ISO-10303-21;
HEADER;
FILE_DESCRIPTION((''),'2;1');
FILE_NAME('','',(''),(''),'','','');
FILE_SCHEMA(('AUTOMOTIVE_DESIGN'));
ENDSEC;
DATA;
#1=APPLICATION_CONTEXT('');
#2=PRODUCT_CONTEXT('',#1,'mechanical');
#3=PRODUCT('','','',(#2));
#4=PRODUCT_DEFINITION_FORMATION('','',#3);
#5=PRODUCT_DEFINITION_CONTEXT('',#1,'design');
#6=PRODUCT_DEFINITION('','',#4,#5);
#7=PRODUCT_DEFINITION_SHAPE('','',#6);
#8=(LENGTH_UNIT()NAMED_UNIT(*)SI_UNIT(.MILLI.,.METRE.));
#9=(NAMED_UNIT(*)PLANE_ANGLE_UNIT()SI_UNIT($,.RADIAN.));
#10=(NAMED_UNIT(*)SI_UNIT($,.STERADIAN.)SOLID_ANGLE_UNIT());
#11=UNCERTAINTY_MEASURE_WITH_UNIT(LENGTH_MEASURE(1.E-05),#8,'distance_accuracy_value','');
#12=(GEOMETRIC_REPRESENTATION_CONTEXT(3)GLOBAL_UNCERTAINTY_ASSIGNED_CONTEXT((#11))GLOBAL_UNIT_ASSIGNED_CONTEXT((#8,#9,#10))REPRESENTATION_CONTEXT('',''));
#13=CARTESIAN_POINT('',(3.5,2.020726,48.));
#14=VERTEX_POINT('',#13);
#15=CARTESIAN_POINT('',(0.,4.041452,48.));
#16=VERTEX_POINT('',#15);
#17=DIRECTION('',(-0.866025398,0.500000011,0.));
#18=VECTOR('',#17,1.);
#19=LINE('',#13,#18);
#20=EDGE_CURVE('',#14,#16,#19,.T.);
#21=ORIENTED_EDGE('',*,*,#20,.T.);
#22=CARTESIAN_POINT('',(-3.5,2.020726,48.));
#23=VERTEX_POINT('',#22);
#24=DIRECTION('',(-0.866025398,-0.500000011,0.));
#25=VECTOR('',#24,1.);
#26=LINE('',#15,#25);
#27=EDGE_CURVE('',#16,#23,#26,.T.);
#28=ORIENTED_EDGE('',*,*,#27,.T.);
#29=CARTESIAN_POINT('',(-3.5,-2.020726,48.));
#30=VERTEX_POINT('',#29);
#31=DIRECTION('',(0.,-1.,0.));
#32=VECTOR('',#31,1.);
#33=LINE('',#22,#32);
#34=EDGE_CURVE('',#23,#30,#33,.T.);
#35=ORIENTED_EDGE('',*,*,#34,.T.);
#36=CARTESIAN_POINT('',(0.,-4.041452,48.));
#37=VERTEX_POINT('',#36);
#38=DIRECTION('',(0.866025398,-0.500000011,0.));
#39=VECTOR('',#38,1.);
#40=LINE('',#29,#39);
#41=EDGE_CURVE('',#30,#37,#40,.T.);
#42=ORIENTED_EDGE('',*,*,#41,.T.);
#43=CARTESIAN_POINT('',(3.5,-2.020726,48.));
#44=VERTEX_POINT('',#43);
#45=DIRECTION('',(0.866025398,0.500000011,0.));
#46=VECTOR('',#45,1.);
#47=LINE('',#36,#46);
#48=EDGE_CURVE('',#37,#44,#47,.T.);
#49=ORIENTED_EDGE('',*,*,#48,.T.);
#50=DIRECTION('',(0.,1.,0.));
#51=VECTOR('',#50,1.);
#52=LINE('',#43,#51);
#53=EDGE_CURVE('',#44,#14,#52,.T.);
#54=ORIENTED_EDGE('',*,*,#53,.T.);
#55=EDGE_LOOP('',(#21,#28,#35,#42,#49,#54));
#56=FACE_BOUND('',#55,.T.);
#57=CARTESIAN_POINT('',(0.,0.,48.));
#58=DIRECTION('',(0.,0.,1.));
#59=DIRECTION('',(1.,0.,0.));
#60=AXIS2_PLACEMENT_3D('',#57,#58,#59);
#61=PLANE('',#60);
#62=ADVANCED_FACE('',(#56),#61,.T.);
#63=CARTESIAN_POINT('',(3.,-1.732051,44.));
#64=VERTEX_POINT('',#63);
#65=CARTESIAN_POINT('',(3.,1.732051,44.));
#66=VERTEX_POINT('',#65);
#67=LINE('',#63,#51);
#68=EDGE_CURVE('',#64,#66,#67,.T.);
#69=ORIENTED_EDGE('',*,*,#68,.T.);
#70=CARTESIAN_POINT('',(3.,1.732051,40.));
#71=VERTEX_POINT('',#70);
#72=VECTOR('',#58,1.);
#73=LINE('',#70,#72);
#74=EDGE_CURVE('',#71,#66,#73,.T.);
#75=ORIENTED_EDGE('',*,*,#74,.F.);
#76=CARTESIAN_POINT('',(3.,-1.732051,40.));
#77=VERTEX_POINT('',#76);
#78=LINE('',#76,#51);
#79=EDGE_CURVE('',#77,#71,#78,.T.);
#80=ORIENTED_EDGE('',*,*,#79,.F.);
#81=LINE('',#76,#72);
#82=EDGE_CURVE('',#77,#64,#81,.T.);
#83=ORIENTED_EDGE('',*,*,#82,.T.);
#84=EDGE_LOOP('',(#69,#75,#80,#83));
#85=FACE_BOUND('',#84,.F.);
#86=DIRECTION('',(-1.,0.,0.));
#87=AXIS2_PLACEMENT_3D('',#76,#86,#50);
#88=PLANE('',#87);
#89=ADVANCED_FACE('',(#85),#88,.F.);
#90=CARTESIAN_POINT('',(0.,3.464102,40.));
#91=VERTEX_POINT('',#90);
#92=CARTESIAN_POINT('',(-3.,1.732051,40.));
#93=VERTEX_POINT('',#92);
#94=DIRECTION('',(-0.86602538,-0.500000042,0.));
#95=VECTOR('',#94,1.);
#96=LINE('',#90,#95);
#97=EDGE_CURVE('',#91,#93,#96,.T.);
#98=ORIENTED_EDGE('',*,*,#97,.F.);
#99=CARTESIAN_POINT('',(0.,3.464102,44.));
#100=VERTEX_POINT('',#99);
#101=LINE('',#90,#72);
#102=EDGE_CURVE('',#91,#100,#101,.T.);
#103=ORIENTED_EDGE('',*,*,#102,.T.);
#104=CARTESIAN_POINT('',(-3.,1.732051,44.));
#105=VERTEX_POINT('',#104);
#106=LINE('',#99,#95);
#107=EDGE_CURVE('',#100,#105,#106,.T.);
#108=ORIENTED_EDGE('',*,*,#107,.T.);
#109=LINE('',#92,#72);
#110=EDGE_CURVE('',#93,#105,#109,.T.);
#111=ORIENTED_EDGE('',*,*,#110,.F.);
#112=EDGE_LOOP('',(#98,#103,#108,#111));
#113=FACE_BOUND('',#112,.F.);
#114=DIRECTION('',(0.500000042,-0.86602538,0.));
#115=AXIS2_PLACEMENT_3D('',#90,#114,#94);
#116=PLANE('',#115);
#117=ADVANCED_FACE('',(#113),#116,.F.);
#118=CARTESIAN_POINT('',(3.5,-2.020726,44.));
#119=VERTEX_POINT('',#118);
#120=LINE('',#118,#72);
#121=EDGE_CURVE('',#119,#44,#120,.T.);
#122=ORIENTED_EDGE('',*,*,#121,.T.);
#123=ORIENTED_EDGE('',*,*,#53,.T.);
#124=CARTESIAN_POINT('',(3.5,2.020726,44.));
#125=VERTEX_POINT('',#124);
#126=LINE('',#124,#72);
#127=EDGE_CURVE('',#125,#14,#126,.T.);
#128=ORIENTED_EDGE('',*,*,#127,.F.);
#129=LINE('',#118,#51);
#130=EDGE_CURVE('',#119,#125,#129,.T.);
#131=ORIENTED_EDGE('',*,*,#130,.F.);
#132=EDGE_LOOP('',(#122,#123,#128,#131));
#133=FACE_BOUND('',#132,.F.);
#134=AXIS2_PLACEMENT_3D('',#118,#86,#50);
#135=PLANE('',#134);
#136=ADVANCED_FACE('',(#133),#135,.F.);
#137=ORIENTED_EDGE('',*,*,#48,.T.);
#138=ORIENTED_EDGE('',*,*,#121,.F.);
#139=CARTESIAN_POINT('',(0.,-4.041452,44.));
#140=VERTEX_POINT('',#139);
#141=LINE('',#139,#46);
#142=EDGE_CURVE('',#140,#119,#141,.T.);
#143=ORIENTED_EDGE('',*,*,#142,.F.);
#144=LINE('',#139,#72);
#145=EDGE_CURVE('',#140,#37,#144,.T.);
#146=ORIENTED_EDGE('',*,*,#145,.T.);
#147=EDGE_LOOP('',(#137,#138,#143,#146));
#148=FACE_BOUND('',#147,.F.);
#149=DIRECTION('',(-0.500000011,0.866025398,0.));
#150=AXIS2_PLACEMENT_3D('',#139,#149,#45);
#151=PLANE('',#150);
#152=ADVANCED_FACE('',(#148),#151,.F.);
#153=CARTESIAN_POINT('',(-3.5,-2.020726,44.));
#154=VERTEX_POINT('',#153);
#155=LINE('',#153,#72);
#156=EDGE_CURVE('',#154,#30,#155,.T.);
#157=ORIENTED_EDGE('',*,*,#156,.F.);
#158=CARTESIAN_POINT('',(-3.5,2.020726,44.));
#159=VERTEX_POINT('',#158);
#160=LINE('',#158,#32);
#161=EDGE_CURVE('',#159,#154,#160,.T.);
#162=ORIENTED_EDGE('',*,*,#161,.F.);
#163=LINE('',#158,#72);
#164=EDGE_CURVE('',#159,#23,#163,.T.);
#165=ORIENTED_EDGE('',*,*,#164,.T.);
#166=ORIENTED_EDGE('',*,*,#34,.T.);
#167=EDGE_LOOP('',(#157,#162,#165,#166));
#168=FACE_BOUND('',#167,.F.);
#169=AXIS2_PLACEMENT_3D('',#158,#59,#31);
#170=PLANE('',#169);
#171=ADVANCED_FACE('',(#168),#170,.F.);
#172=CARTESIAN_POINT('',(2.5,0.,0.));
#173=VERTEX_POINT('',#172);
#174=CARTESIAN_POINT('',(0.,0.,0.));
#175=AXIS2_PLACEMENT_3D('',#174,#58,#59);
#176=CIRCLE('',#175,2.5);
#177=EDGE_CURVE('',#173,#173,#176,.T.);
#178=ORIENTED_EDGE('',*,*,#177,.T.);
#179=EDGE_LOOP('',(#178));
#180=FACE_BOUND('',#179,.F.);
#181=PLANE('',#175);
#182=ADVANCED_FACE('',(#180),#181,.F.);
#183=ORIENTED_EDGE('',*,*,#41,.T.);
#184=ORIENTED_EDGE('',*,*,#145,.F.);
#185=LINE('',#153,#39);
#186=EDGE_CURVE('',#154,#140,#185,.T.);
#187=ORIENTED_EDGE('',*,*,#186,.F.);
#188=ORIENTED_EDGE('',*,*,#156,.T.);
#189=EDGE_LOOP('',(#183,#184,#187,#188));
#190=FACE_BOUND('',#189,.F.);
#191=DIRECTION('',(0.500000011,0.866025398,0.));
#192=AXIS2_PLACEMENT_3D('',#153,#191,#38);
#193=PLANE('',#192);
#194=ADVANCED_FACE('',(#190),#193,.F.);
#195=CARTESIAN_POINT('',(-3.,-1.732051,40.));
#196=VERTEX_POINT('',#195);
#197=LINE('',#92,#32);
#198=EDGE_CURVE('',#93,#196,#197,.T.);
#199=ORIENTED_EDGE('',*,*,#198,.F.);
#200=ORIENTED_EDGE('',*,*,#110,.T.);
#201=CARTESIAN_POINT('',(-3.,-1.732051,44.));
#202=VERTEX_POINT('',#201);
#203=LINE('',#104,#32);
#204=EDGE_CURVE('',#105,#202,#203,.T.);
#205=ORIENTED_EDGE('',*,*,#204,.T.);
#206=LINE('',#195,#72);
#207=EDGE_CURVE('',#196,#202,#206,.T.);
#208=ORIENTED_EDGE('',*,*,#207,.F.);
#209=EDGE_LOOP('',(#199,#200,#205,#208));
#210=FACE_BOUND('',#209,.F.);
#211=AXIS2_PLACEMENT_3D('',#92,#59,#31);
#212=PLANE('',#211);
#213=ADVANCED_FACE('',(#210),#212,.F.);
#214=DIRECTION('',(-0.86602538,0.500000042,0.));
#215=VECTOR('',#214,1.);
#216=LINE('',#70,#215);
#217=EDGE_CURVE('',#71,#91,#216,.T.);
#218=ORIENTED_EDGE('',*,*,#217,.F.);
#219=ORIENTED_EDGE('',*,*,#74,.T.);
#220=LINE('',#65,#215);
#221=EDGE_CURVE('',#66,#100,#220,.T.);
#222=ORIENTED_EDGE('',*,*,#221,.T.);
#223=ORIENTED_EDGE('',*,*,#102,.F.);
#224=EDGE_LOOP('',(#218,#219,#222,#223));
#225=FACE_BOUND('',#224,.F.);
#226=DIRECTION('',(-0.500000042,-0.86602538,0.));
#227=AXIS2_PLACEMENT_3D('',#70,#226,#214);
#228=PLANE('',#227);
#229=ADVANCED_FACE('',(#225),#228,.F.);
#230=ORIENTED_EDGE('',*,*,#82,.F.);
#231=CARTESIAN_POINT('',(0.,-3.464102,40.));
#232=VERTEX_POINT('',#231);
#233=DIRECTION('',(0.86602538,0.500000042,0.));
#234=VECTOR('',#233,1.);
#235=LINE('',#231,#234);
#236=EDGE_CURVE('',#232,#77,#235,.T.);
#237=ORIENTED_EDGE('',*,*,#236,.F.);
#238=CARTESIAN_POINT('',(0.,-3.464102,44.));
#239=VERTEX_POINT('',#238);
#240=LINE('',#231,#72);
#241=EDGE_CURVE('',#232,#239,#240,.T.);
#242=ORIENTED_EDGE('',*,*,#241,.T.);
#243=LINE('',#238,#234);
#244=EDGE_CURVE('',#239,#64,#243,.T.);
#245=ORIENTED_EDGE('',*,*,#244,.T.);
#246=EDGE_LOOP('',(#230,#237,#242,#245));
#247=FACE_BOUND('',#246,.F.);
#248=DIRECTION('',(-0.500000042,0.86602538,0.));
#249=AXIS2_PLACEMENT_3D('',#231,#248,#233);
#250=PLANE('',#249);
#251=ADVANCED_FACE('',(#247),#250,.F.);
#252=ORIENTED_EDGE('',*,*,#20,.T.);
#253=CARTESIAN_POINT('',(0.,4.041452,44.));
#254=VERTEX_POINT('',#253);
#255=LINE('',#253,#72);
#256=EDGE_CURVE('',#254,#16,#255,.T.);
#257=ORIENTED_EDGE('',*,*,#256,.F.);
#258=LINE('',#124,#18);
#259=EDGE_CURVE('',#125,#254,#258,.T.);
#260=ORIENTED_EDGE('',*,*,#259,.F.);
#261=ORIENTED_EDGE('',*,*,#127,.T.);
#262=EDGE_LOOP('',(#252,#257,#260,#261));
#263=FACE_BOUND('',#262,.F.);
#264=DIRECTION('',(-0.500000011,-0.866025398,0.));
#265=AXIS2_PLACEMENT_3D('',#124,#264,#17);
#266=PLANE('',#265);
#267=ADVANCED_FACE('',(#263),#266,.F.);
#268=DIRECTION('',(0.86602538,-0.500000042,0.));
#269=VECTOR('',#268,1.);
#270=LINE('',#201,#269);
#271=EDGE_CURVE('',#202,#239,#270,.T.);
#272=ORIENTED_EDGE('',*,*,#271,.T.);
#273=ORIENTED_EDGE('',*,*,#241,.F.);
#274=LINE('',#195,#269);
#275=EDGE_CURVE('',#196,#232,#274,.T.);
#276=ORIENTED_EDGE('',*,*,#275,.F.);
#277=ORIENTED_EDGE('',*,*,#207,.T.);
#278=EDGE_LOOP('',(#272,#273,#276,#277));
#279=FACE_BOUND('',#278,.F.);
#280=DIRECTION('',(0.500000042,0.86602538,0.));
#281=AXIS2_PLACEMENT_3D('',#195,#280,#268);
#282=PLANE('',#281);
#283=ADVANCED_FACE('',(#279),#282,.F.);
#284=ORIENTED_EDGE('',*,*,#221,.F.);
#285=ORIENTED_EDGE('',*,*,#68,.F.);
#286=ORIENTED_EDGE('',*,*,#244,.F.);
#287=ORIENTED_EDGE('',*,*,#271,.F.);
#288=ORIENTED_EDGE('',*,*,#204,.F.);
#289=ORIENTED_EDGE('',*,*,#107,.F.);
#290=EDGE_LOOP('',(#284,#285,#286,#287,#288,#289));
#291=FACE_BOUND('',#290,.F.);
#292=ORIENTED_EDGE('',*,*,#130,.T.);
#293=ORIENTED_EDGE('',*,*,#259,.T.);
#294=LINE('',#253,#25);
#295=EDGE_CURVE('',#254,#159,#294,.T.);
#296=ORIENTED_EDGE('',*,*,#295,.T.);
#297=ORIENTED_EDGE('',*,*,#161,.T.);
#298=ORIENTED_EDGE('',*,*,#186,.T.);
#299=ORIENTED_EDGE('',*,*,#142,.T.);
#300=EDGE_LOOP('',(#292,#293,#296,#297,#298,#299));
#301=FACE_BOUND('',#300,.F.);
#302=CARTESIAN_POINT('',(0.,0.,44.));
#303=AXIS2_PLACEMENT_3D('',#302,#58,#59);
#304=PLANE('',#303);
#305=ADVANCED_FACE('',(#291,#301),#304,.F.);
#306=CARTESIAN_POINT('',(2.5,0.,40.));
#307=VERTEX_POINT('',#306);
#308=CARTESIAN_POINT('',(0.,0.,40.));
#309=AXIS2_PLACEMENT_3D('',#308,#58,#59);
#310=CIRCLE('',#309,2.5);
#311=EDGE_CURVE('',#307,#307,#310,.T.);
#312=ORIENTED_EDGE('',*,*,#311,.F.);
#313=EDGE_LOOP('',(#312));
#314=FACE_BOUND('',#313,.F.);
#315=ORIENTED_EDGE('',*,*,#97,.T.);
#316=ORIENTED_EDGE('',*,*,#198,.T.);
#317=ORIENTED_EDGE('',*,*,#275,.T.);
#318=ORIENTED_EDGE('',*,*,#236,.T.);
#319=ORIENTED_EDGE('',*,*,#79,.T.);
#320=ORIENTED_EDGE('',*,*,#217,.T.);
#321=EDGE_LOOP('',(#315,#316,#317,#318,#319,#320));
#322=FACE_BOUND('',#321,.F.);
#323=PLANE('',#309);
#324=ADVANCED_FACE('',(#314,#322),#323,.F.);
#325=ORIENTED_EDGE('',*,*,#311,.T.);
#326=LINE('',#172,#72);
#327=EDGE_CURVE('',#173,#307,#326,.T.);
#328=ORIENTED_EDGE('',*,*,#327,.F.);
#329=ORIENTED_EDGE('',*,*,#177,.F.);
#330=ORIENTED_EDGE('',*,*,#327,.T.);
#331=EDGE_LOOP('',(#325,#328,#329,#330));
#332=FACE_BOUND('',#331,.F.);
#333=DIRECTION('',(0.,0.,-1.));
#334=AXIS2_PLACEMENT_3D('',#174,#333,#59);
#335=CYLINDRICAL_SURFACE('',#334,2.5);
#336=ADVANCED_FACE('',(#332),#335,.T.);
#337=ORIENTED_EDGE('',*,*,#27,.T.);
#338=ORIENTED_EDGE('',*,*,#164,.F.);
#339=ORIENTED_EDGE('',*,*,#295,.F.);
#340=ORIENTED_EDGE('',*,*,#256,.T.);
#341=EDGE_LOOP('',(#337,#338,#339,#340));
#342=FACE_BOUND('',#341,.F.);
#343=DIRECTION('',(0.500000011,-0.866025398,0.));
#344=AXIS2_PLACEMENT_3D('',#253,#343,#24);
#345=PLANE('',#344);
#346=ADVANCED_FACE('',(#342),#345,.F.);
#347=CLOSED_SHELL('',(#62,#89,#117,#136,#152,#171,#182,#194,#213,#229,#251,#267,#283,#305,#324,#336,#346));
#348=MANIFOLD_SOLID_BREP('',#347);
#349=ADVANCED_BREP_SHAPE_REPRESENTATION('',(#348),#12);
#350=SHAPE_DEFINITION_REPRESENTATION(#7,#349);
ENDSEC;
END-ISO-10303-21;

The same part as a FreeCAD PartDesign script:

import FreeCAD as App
import Part
import Sketcher
from FreeCAD import Vector
Q = App.Units.Quantity


def add_polygon(sketch, points):
    """Adds a closed chain of lines whose ends are joined by coincident constraints."""
    first, n = sketch.GeometryCount, len(points)
    for a, b in zip(points, points[1:] + points[:1]):
        sketch.addGeometry(Part.LineSegment(App.Vector(*a, 0), App.Vector(*b, 0)), False)
    for i in range(n):
        sketch.addConstraint(Sketcher.Constraint("Coincident", first + i, 2, first + (i + 1) % n, 1))

doc = App.newDocument("Part")
body = doc.addObject("PartDesign::Body", "Body")

sketch1 = body.newObject("Sketcher::SketchObject", "Sketch")
sketch1.AttachmentSupport = (doc.getObject("XY_Plane"), [""])
sketch1.MapMode = "FlatFace"
sketch1.addGeometry(Part.Circle(Vector(0, 0, 0), Vector(0, 0, 1), 2.5), False)
sketch1.addConstraint(Sketcher.Constraint("Coincident", 0, 3, -1, 1))
sketch1.addConstraint(Sketcher.Constraint("Diameter", 0, 5.0))
pad1 = body.newObject("PartDesign::Pad", "Pad")
pad1.Profile = sketch1
pad1.Length = 40

sketch2 = body.newObject("Sketcher::SketchObject", "Sketch001")
sketch2.AttachmentSupport = (doc.getObject("XY_Plane"), [""])
sketch2.MapMode = "FlatFace"
sketch2.AttachmentOffset = App.Placement(Vector(0, 0, 40), App.Rotation())
add_polygon(sketch2, [(3, -1.7), (3, 1.7), (0, 3.5), (-3, 1.7), (-3, -1.7), (0, -3.5)])
sketch2.addConstraint(Sketcher.Constraint("Vertical", 0))
sketch2.addConstraint(Sketcher.Constraint("Vertical", 3))
sketch2.addConstraint(Sketcher.Constraint("Symmetric", 0, 2, 3, 2, -1, 1))
sketch2.addConstraint(Sketcher.Constraint("Symmetric", 1, 2, 4, 2, -1, 1))
sketch2.addConstraint(Sketcher.Constraint("PointOnObject", 1, 2, -2))
sketch2.addConstraint(Sketcher.Constraint("Parallel", 2, 5))
sketch2.addConstraint(Sketcher.Constraint("Horizontal", 0, 2, 2, 2))
sketch2.addConstraint(Sketcher.Constraint("Angle", 1, Q("149.999997 deg")))
sketch2.addConstraint(Sketcher.Constraint("DistanceX", -1, 1, 0, 2, 3.0))
sketch2.addConstraint(Sketcher.Constraint("DistanceY", 0, 1, 0, 2, 3.464102))
pad2 = body.newObject("PartDesign::Pad", "Pad001")
pad2.Profile = sketch2
pad2.Length = 4

sketch3 = body.newObject("Sketcher::SketchObject", "Sketch002")
sketch3.AttachmentSupport = (doc.getObject("XY_Plane"), [""])
sketch3.MapMode = "FlatFace"
sketch3.AttachmentOffset = App.Placement(Vector(0, 0, 44), App.Rotation())
add_polygon(sketch3, [(3.5, -2), (3.5, 2), (0, 4), (-3.5, 2), (-3.5, -2), (0, -4)])
sketch3.addConstraint(Sketcher.Constraint("Vertical", 0))
sketch3.addConstraint(Sketcher.Constraint("Vertical", 3))
sketch3.addConstraint(Sketcher.Constraint("Symmetric", 0, 2, 3, 2, -1, 1))
sketch3.addConstraint(Sketcher.Constraint("Symmetric", 1, 2, 4, 2, -1, 1))
sketch3.addConstraint(Sketcher.Constraint("PointOnObject", 1, 2, -2))
sketch3.addConstraint(Sketcher.Constraint("Parallel", 2, 5))
sketch3.addConstraint(Sketcher.Constraint("Horizontal", 0, 2, 2, 2))
sketch3.addConstraint(Sketcher.Constraint("Angle", 1, Q("149.999999 deg")))
sketch3.addConstraint(Sketcher.Constraint("DistanceX", 2, 2, 0, 2, 7.0))
sketch3.addConstraint(Sketcher.Constraint("DistanceY", 0, 1, 0, 2, 4.041452))
pad3 = body.newObject("PartDesign::Pad", "Pad002")
pad3.Profile = sketch3
pad3.Length = 4

doc.recompute()
